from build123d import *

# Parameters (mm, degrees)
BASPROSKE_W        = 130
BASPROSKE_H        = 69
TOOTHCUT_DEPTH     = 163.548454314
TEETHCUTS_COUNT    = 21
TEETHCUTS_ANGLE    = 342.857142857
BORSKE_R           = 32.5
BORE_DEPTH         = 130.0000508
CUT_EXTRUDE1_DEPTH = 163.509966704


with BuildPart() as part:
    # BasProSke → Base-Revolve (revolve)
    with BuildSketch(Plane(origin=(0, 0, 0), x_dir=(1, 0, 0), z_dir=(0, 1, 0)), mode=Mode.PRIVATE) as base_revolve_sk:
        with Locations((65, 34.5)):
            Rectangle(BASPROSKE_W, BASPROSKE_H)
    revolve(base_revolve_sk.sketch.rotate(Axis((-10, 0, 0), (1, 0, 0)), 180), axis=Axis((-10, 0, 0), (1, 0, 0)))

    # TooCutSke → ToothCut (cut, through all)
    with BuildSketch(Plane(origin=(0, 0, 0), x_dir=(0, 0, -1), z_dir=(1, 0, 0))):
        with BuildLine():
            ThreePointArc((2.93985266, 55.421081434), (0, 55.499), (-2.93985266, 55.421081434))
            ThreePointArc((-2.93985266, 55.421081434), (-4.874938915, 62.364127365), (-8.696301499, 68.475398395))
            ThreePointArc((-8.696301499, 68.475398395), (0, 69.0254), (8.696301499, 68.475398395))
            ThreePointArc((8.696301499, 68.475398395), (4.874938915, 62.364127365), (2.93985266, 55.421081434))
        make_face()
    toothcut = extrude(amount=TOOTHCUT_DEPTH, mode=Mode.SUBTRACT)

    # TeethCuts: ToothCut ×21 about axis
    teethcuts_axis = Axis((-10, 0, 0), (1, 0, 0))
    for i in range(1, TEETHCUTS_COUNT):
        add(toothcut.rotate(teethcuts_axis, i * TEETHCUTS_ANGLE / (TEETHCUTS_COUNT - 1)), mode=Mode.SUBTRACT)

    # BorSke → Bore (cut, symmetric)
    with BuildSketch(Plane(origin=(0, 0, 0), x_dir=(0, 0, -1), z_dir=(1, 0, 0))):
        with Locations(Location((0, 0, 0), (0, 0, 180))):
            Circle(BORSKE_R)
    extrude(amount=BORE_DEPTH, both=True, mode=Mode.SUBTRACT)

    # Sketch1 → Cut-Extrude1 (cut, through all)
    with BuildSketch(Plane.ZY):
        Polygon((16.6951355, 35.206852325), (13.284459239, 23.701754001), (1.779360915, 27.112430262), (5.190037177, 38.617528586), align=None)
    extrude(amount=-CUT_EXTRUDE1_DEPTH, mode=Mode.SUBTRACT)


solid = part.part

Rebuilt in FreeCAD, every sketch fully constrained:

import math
import FreeCAD as App
import Part
import Sketcher

doc = App.newDocument("Part")
body = doc.addObject("PartDesign::Body", "Body")

# Sketch on XZ plane
sketch1 = body.newObject("Sketcher::SketchObject", "Sketch")
sketch1.AttachmentSupport = (doc.getObject("XZ_Plane"), [""])
sketch1.MapMode = "FlatFace"
sketch1.addGeometry([
    Part.LineSegment(App.Vector(0, -69, 0), App.Vector(0, 0, 0)),
    Part.LineSegment(App.Vector(0, 0, 0), App.Vector(130, 0, 0)),
    Part.LineSegment(App.Vector(130, 0, 0), App.Vector(130, -69, 0)),
    Part.LineSegment(App.Vector(130, -69, 0), App.Vector(0, -69, 0)),
], False)
sketch1.addConstraint([
    Sketcher.Constraint("Coincident", 0, 2, 1, 1),
    Sketcher.Constraint("Coincident", 1, 2, 2, 1),
    Sketcher.Constraint("Coincident", 2, 2, 3, 1),
    Sketcher.Constraint("Coincident", 3, 2, 0, 1),
    Sketcher.Constraint("Vertical", 0),
    Sketcher.Constraint("Horizontal", 1),
    Sketcher.Constraint("Vertical", 2),
    Sketcher.Constraint("Horizontal", 3),
    Sketcher.Constraint("Coincident", 0, 2, -1, 1),
    Sketcher.Constraint("DistanceX", 1, 1, 1, 2, 130.0),
    Sketcher.Constraint("DistanceY", 0, 1, 0, 2, 69.0),
])
revolution = body.newObject("PartDesign::Revolution", "Revolution")
revolution.Profile = sketch1
revolution.ReferenceAxis = (sketch1, ["H_Axis"])
revolution.Angle = 360

# Sketch on YZ plane
sketch2 = body.newObject("Sketcher::SketchObject", "Sketch001")
sketch2.AttachmentSupport = (doc.getObject("YZ_Plane"), [""])
sketch2.MapMode = "FlatFace"
sketch2.addGeometry([
    Part.ArcOfCircle(Part.Circle(App.Vector(0, 0, 0), App.Vector(0, 0, 1), 55), math.radians(-3.04), math.radians(3.04)),
    Part.ArcOfCircle(Part.Circle(App.Vector(52, -28, 0), App.Vector(0, 0, 1), 25), math.radians(50), math.radians(83)),
    Part.ArcOfCircle(Part.Circle(App.Vector(0, 0, 0), App.Vector(0, 0, 1), 69), math.radians(-7.24), math.radians(7.24)),
    Part.ArcOfCircle(Part.Circle(App.Vector(52, 28, 0), App.Vector(0, 0, 1), 25), math.radians(-83), math.radians(-50)),
], False)
sketch2.addConstraint([
    Sketcher.Constraint("Coincident", 0, 1, 1, 2),
    Sketcher.Constraint("Coincident", 1, 1, 2, 1),
    Sketcher.Constraint("Coincident", 2, 2, 3, 2),
    Sketcher.Constraint("Coincident", 3, 1, 0, 2),
    Sketcher.Constraint("Coincident", 0, 3, -1, 1),
    Sketcher.Constraint("Coincident", 2, 3, -1, 1),
    Sketcher.Constraint("Equal", 1, 3),
    Sketcher.Constraint("Symmetric", 1, 3, 3, 3, -1),
    Sketcher.Constraint("Radius", 1, 25.2),
    Sketcher.Constraint("Radius", 0, 55.499),
    Sketcher.Constraint("Radius", 2, 69.0254),
    Sketcher.Constraint("DistanceY", 1, 1, 3, 3, 36.629001),
    Sketcher.Constraint("DistanceY", 1, 3, -1, 1, 27.932699),
])
pocket1 = body.newObject("PartDesign::Pocket", "Pocket")
pocket1.Profile = sketch2
pocket1.Type = "ThroughAll"
pocket1.Reversed = True
doc.recompute()

polarpattern = body.newObject("PartDesign::PolarPattern", "PolarPattern")
polarpattern.Originals = [pocket1]
polarpattern.Axis = (doc.getObject("X_Axis"), [""])
polarpattern.Angle = 360
polarpattern.Occurrences = 21
body.Tip = polarpattern

# Sketch on YZ plane
sketch3 = body.newObject("Sketcher::SketchObject", "Sketch002")
sketch3.AttachmentSupport = (doc.getObject("YZ_Plane"), [""])
sketch3.MapMode = "FlatFace"
sketch3.addGeometry(Part.Circle(App.Vector(0, 0, 0), App.Vector(0, 0, 1), 32), False)
sketch3.addConstraint([
    Sketcher.Constraint("Coincident", 0, 3, -1, 1),
    Sketcher.Constraint("Diameter", 0, 65.0),
])
pocket2 = body.newObject("PartDesign::Pocket", "Pocket001")
pocket2.Profile = sketch3
pocket2.Length = 260.000102
pocket2.Midplane = True

# Sketch on YZ plane
sketch4 = body.newObject("Sketcher::SketchObject", "Sketch003")
sketch4.AttachmentSupport = (doc.getObject("YZ_Plane"), [""])
sketch4.MapMode = "FlatFace"
sketch4.addGeometry([
    Part.LineSegment(App.Vector(24, 13, 0), App.Vector(35, 17, 0)),
    Part.LineSegment(App.Vector(35, 17, 0), App.Vector(39, 5, 0)),
    Part.LineSegment(App.Vector(39, 5, 0), App.Vector(27, 2, 0)),
    Part.LineSegment(App.Vector(27, 2, 0), App.Vector(24, 13, 0)),
], False)
sketch4.addConstraint([
    Sketcher.Constraint("Coincident", 0, 2, 1, 1),
    Sketcher.Constraint("Coincident", 1, 2, 2, 1),
    Sketcher.Constraint("Coincident", 2, 2, 3, 1),
    Sketcher.Constraint("Coincident", 3, 2, 0, 1),
    Sketcher.Constraint("Perpendicular", 0, 1),
    Sketcher.Constraint("Perpendicular", 1, 2),
    Sketcher.Constraint("Perpendicular", 2, 3),
    Sketcher.Constraint("Equal", 0, 1),
    Sketcher.Constraint("Distance", 0, 12.0),
    Sketcher.Constraint("DistanceY", 1, 2, 0, 2, 11.505098),
    Sketcher.Constraint("DistanceX", -1, 1, 1, 2, 38.617529),
    Sketcher.Constraint("DistanceY", -1, 1, 2, 2, 1.779361),
])
pocket3 = body.newObject("PartDesign::Pocket", "Pocket002")
pocket3.Profile = sketch4
pocket3.Type = "ThroughAll"
pocket3.Reversed = True

doc.recompute()
